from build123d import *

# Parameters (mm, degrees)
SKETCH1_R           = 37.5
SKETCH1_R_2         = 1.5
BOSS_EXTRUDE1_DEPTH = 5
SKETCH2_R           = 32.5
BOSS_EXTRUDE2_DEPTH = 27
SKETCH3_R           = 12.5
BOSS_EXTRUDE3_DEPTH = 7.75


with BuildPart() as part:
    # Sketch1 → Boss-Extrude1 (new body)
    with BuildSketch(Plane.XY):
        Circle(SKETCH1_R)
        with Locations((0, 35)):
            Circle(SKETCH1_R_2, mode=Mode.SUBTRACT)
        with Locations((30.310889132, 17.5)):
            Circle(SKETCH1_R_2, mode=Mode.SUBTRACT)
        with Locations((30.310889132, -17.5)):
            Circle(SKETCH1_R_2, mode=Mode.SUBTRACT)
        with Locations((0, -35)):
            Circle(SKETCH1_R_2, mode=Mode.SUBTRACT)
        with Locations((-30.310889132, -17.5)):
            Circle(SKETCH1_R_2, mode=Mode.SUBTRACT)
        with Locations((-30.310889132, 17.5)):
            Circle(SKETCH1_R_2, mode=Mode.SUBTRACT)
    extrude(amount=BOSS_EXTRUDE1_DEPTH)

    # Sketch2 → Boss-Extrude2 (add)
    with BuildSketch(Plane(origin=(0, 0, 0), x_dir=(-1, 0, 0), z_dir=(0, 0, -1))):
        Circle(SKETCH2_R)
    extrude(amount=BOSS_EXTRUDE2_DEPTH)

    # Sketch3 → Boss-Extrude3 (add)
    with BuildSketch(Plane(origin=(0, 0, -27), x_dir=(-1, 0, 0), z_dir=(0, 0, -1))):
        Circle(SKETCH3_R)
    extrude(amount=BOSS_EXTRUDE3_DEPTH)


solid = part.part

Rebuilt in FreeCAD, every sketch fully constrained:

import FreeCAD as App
import Part
import Sketcher
Q = App.Units.Quantity

doc = App.newDocument("Part")
body = doc.addObject("PartDesign::Body", "Body")

# Sketch on XY plane
sketch1 = body.newObject("Sketcher::SketchObject", "Sketch")
sketch1.AttachmentSupport = (doc.getObject("XY_Plane"), [""])
sketch1.MapMode = "FlatFace"
sketch1.addGeometry([
    Part.Circle(App.Vector(0, 0, 0), App.Vector(0, 0, 1), 37.5),  # 0
    Part.Circle(App.Vector(-30.310889, -17.5, 0), App.Vector(0, 0, 1), 1.5),  # 1
    Part.Circle(App.Vector(0, -35, 0), App.Vector(0, 0, 1), 1.5),  # 2
    Part.Circle(App.Vector(30.310889, -17.5, 0), App.Vector(0, 0, 1), 1.5),  # 3
    Part.Circle(App.Vector(-30.310889, 17.5, 0), App.Vector(0, 0, 1), 1.5),  # 4
    Part.Circle(App.Vector(30.310889, 17.5, 0), App.Vector(0, 0, 1), 1.5),  # 5
    Part.Circle(App.Vector(0, 35, 0), App.Vector(0, 0, 1), 1.5),  # 6
], False)
sketch1.addConstraint([
    Sketcher.Constraint("Coincident", 0, 3, -1, 1),
    Sketcher.Constraint("Equal", 1, 2),
    Sketcher.Constraint("Equal", 2, 3),
    Sketcher.Constraint("Equal", 3, 4),
    Sketcher.Constraint("Equal", 4, 5),
    Sketcher.Constraint("Equal", 5, 6),
    Sketcher.Constraint("Symmetric", 3, 3, 4, 3, -1, 1),
    Sketcher.Constraint("Symmetric", 1, 3, 5, 3, -1, 1),
    Sketcher.Constraint("Symmetric", 2, 3, 6, 3, -1, 1),
    Sketcher.Constraint("Symmetric", 1, 3, 3, 3, -2),
    Sketcher.Constraint("PointOnObject", 2, 3, -2),
    Sketcher.Constraint("Diameter", 0, Q("75 mm")),
    Sketcher.Constraint("Diameter", 1, Q("3 mm")),
    Sketcher.Constraint("DistanceY", 2, 3, -1, 1, Q("35 mm")),
    Sketcher.Constraint("DistanceY", 1, 3, 4, 3, Q("35 mm")),
    Sketcher.Constraint("DistanceX", 1, 3, -1, 1, Q("30.310889 mm")),
])
pad1 = body.newObject("PartDesign::Pad", "Pad")
pad1.Profile = sketch1
pad1.Length = 5

# Sketch on XY plane
sketch2 = body.newObject("Sketcher::SketchObject", "Sketch001")
sketch2.AttachmentSupport = (doc.getObject("XY_Plane"), [""])
sketch2.MapMode = "FlatFace"
sketch2.addGeometry(Part.Circle(App.Vector(0, 0, 0), App.Vector(0, 0, 1), 32.5), False)
sketch2.addConstraint([
    Sketcher.Constraint("Coincident", 0, 3, -1, 1),
    Sketcher.Constraint("Diameter", 0, Q("65 mm")),
])
pad2 = body.newObject("PartDesign::Pad", "Pad001")
pad2.Profile = sketch2
pad2.Length = 27
pad2.Reversed = True

# Sketch on XY plane
sketch3 = body.newObject("Sketcher::SketchObject", "Sketch002")
sketch3.AttachmentSupport = (doc.getObject("XY_Plane"), [""])
sketch3.MapMode = "FlatFace"
sketch3.AttachmentOffset = App.Placement(App.Vector(0, 0, -27), App.Rotation())
sketch3.addGeometry(Part.Circle(App.Vector(0, 0, 0), App.Vector(0, 0, 1), 12.5), False)
sketch3.addConstraint([
    Sketcher.Constraint("Coincident", 0, 3, -1, 1),
    Sketcher.Constraint("Diameter", 0, Q("25 mm")),
])
pad3 = body.newObject("PartDesign::Pad", "Pad002")
pad3.Profile = sketch3
pad3.Length = 7.75
pad3.Reversed = True

doc.recompute()
